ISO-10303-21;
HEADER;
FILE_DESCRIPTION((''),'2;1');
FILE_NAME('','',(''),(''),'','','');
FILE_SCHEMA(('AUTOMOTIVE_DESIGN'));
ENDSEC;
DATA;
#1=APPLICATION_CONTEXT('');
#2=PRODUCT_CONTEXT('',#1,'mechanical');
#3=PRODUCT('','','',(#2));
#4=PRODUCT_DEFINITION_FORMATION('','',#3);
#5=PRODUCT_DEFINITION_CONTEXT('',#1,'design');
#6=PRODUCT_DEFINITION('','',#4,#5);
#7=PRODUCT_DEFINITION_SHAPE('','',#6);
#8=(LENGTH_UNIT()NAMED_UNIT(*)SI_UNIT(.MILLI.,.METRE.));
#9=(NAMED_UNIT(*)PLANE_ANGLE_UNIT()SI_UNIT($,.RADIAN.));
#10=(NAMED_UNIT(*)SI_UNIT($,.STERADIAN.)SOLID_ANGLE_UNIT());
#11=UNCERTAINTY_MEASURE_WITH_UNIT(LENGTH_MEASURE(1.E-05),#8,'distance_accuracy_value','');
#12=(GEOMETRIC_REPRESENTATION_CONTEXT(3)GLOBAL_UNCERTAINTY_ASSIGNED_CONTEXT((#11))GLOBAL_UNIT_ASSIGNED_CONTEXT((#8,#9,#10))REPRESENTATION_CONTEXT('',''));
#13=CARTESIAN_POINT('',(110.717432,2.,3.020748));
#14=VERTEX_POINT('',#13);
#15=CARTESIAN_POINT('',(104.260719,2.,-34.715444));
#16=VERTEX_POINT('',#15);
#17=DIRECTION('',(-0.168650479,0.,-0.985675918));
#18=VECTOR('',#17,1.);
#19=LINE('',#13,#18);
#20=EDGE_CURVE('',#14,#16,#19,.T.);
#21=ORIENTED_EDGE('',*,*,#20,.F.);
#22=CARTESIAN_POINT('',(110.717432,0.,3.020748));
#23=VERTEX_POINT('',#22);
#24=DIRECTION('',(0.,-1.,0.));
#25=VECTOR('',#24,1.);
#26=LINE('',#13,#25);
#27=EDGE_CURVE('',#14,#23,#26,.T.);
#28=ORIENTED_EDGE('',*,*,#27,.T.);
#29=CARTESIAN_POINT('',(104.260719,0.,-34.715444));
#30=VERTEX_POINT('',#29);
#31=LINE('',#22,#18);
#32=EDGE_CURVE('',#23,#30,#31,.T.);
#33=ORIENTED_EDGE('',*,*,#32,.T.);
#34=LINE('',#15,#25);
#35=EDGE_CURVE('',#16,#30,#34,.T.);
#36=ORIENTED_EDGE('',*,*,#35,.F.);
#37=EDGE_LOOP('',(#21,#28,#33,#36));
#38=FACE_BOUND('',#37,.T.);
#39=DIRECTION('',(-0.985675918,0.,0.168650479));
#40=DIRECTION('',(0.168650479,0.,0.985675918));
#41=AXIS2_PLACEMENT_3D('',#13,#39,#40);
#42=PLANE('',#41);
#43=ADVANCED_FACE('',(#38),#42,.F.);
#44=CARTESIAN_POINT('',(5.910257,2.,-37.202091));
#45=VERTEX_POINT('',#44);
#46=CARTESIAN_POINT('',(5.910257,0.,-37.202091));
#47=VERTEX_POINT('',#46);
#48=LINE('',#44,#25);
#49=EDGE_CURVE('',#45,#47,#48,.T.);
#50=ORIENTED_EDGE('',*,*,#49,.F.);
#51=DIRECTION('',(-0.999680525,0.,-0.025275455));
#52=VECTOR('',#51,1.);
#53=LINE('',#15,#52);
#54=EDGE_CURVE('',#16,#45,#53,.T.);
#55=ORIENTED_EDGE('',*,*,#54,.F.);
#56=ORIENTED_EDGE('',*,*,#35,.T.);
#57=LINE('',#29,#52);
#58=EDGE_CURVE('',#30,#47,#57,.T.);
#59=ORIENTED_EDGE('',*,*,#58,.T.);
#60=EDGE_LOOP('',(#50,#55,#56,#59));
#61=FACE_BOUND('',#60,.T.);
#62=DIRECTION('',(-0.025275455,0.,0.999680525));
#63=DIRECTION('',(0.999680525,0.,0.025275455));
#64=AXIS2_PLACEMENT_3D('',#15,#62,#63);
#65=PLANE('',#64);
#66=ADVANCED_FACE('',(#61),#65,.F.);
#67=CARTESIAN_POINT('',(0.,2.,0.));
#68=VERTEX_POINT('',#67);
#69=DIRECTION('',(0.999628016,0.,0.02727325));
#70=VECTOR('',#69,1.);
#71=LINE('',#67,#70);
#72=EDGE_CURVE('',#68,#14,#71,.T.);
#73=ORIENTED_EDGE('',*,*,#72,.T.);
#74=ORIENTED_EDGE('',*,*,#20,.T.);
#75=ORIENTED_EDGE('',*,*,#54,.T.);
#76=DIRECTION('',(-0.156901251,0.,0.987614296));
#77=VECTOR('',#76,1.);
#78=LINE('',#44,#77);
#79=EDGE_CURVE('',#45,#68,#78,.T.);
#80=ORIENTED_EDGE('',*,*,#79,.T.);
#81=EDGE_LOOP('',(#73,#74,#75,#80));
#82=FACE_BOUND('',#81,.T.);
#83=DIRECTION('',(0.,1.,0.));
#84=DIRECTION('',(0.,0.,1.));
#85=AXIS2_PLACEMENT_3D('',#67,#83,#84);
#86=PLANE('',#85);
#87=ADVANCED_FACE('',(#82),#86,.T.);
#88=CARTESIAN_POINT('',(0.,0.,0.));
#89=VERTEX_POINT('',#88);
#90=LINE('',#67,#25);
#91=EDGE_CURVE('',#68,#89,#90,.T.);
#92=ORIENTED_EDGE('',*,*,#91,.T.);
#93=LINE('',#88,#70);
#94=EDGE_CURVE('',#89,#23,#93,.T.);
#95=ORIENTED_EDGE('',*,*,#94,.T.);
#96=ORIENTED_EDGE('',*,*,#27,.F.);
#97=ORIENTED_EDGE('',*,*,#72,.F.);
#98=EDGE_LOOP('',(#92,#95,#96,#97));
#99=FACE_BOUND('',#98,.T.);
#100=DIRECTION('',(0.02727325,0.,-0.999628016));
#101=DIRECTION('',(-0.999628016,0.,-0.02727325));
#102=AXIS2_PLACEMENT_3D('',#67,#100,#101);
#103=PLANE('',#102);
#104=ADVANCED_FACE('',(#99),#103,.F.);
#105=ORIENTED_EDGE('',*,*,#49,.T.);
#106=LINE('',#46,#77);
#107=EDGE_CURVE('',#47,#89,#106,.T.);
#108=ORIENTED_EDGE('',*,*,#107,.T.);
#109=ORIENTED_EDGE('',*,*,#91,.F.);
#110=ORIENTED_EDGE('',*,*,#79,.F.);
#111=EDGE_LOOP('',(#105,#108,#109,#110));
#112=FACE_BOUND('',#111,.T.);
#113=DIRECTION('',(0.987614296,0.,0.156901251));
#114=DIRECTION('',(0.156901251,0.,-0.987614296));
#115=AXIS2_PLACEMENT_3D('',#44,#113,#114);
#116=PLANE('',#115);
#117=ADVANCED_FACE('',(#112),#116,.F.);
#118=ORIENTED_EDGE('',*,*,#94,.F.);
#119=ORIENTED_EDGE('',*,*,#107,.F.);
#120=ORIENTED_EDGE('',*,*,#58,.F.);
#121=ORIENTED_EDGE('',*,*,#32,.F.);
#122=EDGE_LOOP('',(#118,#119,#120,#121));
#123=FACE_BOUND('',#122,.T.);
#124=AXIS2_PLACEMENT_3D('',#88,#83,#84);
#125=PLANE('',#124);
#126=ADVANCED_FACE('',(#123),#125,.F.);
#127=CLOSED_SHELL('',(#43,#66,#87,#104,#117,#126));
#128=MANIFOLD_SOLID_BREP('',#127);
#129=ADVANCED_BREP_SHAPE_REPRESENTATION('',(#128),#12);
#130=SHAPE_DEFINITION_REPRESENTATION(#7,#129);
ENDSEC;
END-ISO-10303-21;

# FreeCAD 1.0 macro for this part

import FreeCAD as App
import Part
import Sketcher
from FreeCAD import Vector
Q = App.Units.Quantity

doc = App.newDocument("Part")
body = doc.addObject("PartDesign::Body", "Body")

sketch1 = body.newObject("Sketcher::SketchObject", "Sketch")
sketch1.AttachmentSupport = (doc.getObject("XZ_Plane"), [""])
sketch1.MapMode = "FlatFace"
sketch1.addGeometry(Part.LineSegment(Vector(5.910257, -37.202091, 0), Vector(0, 0, 0)), False)
sketch1.addGeometry(Part.LineSegment(Vector(0, 0, 0), Vector(110.717432, 3.020748, 0)), False)
sketch1.addGeometry(Part.LineSegment(Vector(110.717432, 3.020748, 0), Vector(104.260719, -34.715444, 0)), False)
sketch1.addGeometry(Part.LineSegment(Vector(104.260719, -34.715444, 0), Vector(5.910257, -37.202091, 0)), False)
sketch1.addConstraint(Sketcher.Constraint("Coincident", 0, 2, 1, 1))
sketch1.addConstraint(Sketcher.Constraint("Coincident", 1, 2, 2, 1))
sketch1.addConstraint(Sketcher.Constraint("Coincident", 2, 2, 3, 1))
sketch1.addConstraint(Sketcher.Constraint("Coincident", 3, 2, 0, 1))
sketch1.addConstraint(Sketcher.Constraint("Coincident", 0, 2, -1, 1))
sketch1.addConstraint(Sketcher.Constraint("DistanceX", -1, 1, 2, 2, Q("104.260719 mm")))
sketch1.addConstraint(Sketcher.Constraint("DistanceY", 3, 2, -1, 1, Q("37.202091 mm")))
sketch1.addConstraint(Sketcher.Constraint("DistanceY", 2, 2, 1, 2, Q("37.736192 mm")))
sketch1.addConstraint(Sketcher.Constraint("DistanceX", 3, 2, 2, 2, Q("98.350461 mm")))
sketch1.addConstraint(Sketcher.Constraint("DistanceY", 3, 2, 1, 2, Q("40.222839 mm")))
sketch1.addConstraint(Sketcher.Constraint("Distance", 1, Q("110.758633 mm")))
pad1 = body.newObject("PartDesign::Pad", "Pad")
pad1.Profile = sketch1
pad1.Length = 2
pad1.Reversed = True

doc.recompute()
